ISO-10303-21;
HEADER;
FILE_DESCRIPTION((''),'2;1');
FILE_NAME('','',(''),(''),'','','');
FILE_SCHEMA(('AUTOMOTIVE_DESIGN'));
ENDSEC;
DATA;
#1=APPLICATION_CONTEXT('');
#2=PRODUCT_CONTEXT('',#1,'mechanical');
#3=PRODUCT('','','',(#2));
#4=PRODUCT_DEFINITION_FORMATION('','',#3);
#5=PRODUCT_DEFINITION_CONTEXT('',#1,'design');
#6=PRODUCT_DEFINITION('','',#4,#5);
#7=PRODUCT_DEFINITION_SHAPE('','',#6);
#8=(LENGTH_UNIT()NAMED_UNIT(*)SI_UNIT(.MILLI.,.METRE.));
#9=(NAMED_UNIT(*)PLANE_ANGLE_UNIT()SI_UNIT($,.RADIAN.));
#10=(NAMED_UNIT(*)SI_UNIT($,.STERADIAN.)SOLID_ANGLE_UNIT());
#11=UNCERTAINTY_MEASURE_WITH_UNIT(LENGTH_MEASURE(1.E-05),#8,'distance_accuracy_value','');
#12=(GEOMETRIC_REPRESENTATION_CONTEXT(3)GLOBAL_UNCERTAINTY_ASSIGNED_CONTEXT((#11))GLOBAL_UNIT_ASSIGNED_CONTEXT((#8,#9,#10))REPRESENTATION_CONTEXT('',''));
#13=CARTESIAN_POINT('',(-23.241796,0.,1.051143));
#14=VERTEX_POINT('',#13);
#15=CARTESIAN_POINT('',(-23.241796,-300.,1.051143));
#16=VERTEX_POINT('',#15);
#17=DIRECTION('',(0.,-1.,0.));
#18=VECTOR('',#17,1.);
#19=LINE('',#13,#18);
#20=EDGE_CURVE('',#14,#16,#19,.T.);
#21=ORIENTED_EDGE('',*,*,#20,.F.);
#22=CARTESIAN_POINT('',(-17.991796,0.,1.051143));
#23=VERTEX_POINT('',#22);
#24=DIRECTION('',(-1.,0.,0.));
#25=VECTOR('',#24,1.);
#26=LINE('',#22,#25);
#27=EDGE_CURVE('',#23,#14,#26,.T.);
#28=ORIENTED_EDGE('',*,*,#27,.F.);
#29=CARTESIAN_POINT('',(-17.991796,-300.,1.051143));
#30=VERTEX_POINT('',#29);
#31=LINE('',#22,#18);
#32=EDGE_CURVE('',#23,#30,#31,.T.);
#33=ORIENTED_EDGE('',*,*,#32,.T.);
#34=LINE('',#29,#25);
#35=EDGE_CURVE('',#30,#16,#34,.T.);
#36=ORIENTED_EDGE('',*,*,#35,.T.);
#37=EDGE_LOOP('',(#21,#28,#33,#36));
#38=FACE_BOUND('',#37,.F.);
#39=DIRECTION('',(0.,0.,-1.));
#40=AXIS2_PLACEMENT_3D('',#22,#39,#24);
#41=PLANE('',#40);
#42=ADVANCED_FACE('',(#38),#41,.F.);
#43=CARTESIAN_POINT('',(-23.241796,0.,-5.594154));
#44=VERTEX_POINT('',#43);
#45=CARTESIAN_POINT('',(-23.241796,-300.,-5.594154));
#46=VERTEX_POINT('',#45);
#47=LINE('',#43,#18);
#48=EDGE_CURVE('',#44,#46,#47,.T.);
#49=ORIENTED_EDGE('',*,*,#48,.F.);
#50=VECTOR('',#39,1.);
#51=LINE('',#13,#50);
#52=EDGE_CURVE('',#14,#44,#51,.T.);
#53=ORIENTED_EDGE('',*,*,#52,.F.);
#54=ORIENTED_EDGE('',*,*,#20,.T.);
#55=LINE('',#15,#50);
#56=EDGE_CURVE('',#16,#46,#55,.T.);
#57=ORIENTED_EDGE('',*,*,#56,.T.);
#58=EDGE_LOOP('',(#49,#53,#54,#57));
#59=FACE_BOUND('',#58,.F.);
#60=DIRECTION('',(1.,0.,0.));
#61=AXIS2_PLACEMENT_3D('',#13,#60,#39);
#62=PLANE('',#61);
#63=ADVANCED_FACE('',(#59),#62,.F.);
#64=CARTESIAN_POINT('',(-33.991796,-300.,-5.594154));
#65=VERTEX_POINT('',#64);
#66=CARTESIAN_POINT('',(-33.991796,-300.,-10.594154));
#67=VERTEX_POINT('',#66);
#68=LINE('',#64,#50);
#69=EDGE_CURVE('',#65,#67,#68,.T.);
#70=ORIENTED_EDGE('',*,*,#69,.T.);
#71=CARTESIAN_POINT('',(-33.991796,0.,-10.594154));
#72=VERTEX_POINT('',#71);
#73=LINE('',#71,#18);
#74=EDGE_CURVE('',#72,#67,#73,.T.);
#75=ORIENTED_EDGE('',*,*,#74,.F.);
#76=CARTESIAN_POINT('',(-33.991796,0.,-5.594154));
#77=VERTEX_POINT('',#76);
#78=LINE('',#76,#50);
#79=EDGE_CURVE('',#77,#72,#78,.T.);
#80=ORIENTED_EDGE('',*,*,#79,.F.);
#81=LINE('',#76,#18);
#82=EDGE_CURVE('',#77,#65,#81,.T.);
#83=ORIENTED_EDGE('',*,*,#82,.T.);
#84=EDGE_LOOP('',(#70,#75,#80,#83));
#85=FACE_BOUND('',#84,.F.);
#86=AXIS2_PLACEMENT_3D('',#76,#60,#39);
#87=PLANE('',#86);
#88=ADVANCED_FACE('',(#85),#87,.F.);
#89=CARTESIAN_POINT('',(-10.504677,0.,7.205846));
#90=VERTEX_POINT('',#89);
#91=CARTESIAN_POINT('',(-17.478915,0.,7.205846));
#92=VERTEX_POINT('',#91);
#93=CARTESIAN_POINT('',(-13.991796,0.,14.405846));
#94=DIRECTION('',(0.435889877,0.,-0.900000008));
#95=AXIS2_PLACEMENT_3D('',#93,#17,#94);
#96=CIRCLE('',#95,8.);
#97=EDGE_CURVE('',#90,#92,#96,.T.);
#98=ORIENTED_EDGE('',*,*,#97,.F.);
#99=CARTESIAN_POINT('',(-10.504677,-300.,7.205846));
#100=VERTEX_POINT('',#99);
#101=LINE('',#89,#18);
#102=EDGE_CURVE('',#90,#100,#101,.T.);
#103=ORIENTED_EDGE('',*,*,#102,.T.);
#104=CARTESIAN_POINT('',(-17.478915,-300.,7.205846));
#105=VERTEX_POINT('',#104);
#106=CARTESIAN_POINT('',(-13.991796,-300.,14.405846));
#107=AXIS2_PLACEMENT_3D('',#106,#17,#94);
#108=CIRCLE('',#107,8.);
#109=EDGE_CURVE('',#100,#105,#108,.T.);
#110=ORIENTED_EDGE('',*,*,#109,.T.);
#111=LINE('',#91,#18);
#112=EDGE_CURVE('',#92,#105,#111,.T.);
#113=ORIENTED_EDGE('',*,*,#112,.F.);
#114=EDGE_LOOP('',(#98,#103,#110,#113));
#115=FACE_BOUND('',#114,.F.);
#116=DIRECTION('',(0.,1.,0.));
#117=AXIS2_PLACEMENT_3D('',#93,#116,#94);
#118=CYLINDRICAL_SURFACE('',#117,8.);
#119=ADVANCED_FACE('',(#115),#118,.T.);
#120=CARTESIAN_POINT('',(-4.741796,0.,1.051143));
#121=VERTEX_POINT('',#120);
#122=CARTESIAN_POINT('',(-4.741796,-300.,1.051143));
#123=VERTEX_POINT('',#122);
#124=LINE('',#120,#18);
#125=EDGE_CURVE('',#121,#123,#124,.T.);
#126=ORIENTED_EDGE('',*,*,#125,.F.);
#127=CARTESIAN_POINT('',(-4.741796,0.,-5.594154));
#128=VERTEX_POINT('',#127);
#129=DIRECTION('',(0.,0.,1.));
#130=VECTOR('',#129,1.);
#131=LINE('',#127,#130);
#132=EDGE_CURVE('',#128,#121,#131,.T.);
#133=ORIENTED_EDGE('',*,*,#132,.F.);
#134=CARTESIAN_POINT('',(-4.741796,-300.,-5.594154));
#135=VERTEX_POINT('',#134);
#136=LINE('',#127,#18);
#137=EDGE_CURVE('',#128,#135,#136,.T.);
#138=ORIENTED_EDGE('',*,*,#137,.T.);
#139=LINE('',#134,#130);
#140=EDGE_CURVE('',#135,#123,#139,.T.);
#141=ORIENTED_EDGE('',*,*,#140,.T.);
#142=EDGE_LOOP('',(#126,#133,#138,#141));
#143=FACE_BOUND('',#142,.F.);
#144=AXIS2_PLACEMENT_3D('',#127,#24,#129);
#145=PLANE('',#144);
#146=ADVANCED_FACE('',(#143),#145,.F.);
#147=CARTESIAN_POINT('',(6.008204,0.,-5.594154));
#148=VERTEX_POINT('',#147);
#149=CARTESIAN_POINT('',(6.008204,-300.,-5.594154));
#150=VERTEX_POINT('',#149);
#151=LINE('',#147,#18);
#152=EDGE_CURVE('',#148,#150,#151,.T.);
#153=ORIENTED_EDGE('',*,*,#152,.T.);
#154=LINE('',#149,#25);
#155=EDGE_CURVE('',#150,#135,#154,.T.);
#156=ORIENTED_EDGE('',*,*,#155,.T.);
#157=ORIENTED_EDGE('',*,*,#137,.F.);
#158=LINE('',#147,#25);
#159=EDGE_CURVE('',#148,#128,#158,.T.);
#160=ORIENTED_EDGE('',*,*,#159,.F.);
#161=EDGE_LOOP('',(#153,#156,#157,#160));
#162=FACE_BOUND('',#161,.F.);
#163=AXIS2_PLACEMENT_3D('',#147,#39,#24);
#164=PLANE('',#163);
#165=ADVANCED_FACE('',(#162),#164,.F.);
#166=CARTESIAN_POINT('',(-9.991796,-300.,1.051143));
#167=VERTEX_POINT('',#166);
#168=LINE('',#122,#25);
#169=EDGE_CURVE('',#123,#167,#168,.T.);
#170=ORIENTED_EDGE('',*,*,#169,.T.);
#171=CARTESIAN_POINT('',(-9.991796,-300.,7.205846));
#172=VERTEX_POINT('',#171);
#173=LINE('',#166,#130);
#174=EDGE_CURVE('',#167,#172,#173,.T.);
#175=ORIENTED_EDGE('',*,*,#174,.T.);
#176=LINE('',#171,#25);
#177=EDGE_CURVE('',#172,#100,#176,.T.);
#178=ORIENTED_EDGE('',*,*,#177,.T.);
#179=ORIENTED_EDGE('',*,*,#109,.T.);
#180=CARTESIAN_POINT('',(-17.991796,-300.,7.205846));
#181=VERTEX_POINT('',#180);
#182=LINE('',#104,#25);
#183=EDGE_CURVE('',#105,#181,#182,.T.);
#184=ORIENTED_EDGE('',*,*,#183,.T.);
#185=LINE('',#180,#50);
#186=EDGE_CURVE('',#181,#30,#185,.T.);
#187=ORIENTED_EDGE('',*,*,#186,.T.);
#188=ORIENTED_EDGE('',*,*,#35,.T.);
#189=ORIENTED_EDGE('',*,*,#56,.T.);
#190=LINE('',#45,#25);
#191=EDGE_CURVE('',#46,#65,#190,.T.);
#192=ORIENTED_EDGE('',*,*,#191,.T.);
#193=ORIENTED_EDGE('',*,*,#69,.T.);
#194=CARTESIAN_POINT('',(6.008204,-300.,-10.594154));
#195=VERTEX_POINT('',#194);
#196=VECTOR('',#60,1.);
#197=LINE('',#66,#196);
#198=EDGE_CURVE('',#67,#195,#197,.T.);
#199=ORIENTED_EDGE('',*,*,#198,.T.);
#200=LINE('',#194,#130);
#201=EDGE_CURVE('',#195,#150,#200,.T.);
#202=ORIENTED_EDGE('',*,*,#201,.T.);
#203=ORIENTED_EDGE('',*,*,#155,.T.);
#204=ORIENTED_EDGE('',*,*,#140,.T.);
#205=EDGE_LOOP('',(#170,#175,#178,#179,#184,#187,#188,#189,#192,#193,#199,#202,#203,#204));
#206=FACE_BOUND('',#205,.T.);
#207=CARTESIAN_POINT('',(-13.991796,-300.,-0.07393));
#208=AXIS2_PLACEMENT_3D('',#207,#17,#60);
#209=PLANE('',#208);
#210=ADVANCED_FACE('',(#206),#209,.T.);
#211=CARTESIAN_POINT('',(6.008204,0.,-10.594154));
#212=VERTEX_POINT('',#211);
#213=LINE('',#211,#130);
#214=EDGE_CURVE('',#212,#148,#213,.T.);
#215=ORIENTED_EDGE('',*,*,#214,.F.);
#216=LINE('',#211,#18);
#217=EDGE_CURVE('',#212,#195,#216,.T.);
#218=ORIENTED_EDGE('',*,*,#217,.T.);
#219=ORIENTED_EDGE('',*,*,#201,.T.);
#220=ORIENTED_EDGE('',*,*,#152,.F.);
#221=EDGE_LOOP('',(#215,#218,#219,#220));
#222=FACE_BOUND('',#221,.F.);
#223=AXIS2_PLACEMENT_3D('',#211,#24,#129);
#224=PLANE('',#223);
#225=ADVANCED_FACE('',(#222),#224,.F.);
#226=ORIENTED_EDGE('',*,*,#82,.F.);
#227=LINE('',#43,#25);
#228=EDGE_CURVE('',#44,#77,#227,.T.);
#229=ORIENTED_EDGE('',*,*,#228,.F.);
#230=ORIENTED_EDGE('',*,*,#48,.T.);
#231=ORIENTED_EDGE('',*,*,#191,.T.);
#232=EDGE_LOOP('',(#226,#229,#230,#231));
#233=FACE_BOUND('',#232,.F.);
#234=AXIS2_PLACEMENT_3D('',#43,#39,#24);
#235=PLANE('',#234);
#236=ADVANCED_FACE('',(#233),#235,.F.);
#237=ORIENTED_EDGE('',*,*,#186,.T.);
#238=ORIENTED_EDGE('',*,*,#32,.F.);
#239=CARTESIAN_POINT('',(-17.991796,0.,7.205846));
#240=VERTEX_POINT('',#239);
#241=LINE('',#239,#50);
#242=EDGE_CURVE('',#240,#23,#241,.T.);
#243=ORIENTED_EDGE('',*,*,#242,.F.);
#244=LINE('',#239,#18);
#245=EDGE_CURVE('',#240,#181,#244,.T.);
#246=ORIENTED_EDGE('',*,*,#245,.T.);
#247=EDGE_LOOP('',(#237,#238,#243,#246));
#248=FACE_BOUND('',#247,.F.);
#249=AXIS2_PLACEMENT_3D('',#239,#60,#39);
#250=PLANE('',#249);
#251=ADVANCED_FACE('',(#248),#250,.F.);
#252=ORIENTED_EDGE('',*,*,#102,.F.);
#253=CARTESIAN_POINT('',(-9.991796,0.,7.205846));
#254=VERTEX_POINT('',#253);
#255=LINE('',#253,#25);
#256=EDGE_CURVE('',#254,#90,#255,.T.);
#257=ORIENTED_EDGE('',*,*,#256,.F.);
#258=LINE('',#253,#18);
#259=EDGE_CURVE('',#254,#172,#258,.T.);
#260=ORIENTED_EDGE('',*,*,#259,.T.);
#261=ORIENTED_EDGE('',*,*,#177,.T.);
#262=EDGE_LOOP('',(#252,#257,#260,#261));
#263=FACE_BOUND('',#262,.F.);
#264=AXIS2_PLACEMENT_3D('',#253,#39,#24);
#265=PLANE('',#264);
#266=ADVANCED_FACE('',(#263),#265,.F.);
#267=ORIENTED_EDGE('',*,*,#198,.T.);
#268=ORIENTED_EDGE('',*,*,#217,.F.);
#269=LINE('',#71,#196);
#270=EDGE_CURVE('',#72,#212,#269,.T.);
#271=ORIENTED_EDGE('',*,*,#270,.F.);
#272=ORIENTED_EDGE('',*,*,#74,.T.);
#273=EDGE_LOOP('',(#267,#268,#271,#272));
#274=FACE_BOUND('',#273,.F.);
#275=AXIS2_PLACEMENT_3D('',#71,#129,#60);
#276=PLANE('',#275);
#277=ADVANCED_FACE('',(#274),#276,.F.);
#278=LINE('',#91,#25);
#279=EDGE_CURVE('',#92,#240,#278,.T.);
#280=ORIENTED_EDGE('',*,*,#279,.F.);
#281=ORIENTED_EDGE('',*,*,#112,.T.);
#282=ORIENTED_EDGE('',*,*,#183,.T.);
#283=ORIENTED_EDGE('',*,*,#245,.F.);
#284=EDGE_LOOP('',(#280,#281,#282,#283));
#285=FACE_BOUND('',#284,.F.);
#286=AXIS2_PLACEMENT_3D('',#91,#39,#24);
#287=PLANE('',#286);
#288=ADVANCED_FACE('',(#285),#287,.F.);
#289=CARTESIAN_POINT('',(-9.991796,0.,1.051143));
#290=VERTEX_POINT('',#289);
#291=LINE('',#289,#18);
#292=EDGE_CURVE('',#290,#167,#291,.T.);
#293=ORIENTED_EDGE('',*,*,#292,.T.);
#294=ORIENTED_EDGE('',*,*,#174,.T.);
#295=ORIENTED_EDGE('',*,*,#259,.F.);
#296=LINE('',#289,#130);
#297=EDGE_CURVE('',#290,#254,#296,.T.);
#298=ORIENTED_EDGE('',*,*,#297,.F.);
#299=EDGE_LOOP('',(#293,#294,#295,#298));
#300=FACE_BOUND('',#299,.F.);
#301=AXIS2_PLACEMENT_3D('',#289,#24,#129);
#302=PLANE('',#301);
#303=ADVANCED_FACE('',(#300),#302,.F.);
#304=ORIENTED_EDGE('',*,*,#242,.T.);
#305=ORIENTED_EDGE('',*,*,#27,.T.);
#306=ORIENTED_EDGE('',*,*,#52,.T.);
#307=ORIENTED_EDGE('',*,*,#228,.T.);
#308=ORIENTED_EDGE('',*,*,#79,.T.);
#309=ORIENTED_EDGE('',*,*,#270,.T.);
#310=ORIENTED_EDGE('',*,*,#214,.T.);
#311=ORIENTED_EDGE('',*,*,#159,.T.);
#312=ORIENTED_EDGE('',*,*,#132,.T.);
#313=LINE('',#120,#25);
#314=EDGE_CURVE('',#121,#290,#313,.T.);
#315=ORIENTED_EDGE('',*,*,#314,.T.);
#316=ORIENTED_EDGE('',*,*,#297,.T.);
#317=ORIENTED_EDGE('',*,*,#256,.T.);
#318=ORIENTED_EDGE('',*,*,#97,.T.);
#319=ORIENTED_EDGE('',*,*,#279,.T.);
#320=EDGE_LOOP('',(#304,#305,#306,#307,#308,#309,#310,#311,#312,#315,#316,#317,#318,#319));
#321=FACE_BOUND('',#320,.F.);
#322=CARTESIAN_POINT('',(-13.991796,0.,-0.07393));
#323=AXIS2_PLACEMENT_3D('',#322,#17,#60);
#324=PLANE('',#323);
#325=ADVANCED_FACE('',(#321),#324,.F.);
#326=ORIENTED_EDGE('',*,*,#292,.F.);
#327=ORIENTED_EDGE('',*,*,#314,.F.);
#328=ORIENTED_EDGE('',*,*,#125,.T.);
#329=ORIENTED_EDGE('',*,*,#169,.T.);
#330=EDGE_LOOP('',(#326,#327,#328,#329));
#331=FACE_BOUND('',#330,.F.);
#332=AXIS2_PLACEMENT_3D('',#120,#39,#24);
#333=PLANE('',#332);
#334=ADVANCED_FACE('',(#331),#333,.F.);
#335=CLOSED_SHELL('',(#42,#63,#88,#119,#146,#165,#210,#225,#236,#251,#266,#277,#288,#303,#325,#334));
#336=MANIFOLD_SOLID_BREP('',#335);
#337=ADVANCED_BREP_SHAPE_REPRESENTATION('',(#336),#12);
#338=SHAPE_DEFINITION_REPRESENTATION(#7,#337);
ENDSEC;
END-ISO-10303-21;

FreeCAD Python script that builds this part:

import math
import FreeCAD as App
import Part
import Sketcher

V = App.Vector
Q = App.Units.Quantity

doc = App.newDocument("Part")
body = doc.addObject("PartDesign::Body", "Body")

# Sketch on XZ plane
sketch1 = body.newObject("Sketcher::SketchObject", "Sketch")
sketch1.AttachmentSupport = (doc.getObject("XZ_Plane"), [""])
sketch1.MapMode = "FlatFace"
sketch1.addGeometry([
    Part.LineSegment(V(-33.991796, -5.594154, 0), V(-33.991796, -10.594154, 0)),  # 0
    Part.LineSegment(V(-33.991796, -10.594154, 0), V(6.008204, -10.594154, 0)),  # 1
    Part.LineSegment(V(6.008204, -10.594154, 0), V(6.008204, -5.594154, 0)),  # 2
    Part.LineSegment(V(6.008204, -5.594154, 0), V(-4.741796, -5.594154, 0)),  # 3
    Part.LineSegment(V(-4.741796, -5.594154, 0), V(-4.741796, 1.051143, 0)),  # 4
    Part.LineSegment(V(-4.741796, 1.051143, 0), V(-9.991796, 1.051143, 0)),  # 5
    Part.LineSegment(V(-9.991796, 1.051143, 0), V(-9.991796, 7.205846, 0)),  # 6
    Part.LineSegment(V(-9.991796, 7.205846, 0), V(-10.504677, 7.205846, 0)),  # 7
    Part.ArcOfCircle(Part.Circle(V(-13.991796, 14.405846, 0), V(0, 0, 1), 8), math.radians(-64.158068), math.radians(244.158068)),  # 8
    Part.LineSegment(V(-17.478915, 7.205846, 0), V(-17.991796, 7.205846, 0)),  # 9
    Part.LineSegment(V(-17.991796, 7.205846, 0), V(-17.991796, 1.051143, 0)),  # 10
    Part.LineSegment(V(-17.991796, 1.051143, 0), V(-23.241796, 1.051143, 0)),  # 11
    Part.LineSegment(V(-23.241796, 1.051143, 0), V(-23.241796, -5.594154, 0)),  # 12
    Part.LineSegment(V(-23.241796, -5.594154, 0), V(-33.991796, -5.594154, 0)),  # 13
], False)
sketch1.addConstraint([
    Sketcher.Constraint("Coincident", 0, 2, 1, 1),
    Sketcher.Constraint("Coincident", 1, 2, 2, 1),
    Sketcher.Constraint("Coincident", 2, 2, 3, 1),
    Sketcher.Constraint("Coincident", 3, 2, 4, 1),
    Sketcher.Constraint("Coincident", 4, 2, 5, 1),
    Sketcher.Constraint("Coincident", 5, 2, 6, 1),
    Sketcher.Constraint("Coincident", 6, 2, 7, 1),
    Sketcher.Constraint("Coincident", 7, 2, 8, 1),
    Sketcher.Constraint("Coincident", 8, 2, 9, 1),
    Sketcher.Constraint("Coincident", 9, 2, 10, 1),
    Sketcher.Constraint("Coincident", 10, 2, 11, 1),
    Sketcher.Constraint("Coincident", 11, 2, 12, 1),
    Sketcher.Constraint("Coincident", 12, 2, 13, 1),
    Sketcher.Constraint("Coincident", 13, 2, 0, 1),
    Sketcher.Constraint("Vertical", 0),
    Sketcher.Constraint("Horizontal", 1),
    Sketcher.Constraint("Vertical", 2),
    Sketcher.Constraint("Horizontal", 3),
    Sketcher.Constraint("Vertical", 4),
    Sketcher.Constraint("Horizontal", 5),
    Sketcher.Constraint("Vertical", 6),
    Sketcher.Constraint("Horizontal", 7),
    Sketcher.Constraint("Horizontal", 9),
    Sketcher.Constraint("Vertical", 10),
    Sketcher.Constraint("Horizontal", 11),
    Sketcher.Constraint("Vertical", 12),
    Sketcher.Constraint("Horizontal", 13),
    Sketcher.Constraint("Horizontal", 7, 2, 8, 2),
    Sketcher.Constraint("Horizontal", 5, 2, 10, 2),
    Sketcher.Constraint("Horizontal", 3, 2, 12, 2),
    Sketcher.Constraint("Equal", 7, 9),
    Sketcher.Constraint("Equal", 5, 11),
    Sketcher.Constraint("Equal", 3, 13),
    Sketcher.Constraint("Radius", 8, Q("8 mm")),
    Sketcher.Constraint("DistanceX", 1, 1, 1, 2, Q("40 mm")),
    Sketcher.Constraint("DistanceY", 0, 2, 0, 1, Q("5 mm")),
    Sketcher.Constraint("DistanceY", 0, 2, 8, 3, Q("25 mm")),
    Sketcher.Constraint("DistanceX", 8, 3, 5, 2, Q("4 mm")),
    Sketcher.Constraint("DistanceX", 3, 2, 3, 1, Q("10.75 mm")),
    Sketcher.Constraint("DistanceY", 6, 2, 8, 3, Q("7.2 mm")),
    Sketcher.Constraint("DistanceY", 4, 1, 4, 2, Q("6.645297 mm")),
    Sketcher.Constraint("DistanceX", 8, 3, -1, 1, Q("13.991796 mm")),
    Sketcher.Constraint("DistanceY", -1, 1, 8, 3, Q("14.405846 mm")),
])
pad1 = body.newObject("PartDesign::Pad", "Pad")
pad1.Profile = sketch1
pad1.Length = 300

doc.recompute()
